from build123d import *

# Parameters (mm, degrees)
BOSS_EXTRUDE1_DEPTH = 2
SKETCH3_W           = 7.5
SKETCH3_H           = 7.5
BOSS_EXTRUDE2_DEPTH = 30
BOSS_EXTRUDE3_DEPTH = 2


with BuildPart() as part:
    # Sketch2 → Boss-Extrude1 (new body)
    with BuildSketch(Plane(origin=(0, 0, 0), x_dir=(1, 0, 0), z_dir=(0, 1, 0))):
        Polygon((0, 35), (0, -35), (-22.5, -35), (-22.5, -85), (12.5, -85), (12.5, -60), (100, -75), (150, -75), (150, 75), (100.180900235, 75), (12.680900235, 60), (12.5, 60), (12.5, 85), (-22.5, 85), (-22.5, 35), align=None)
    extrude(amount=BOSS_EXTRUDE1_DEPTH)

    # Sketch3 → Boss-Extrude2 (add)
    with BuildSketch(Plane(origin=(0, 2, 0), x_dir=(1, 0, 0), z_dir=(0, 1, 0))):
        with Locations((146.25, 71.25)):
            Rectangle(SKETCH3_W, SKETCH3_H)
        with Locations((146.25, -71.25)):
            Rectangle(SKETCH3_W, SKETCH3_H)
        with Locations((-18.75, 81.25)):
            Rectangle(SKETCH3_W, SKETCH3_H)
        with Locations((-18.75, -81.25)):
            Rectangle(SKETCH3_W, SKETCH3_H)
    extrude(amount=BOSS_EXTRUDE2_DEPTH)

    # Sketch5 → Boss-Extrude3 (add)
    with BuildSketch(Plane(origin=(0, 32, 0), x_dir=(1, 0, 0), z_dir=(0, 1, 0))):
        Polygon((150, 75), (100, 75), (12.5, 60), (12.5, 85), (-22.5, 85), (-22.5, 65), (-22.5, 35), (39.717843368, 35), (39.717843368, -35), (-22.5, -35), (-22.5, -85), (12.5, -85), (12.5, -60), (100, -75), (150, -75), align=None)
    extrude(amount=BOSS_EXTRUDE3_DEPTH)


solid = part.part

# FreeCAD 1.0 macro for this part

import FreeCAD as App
import Part
import Sketcher
from FreeCAD import Vector

doc = App.newDocument("Part")
body = doc.addObject("PartDesign::Body", "Body")

# Sketch on XZ plane
sketch1 = doc.addObject("Sketcher::SketchObject", "Sketch")
body.addObject(sketch1)
sketch1.AttachmentSupport = (doc.XZ_Plane, [""])
sketch1.MapMode = "FlatFace"
sketch1.addGeometry([
    Part.LineSegment(Vector(0, -35, 0), Vector(0, 35, 0)),  # 0
    Part.LineSegment(Vector(0, 35, 0), Vector(-22.5, 35, 0)),  # 1
    Part.LineSegment(Vector(-22.5, 35, 0), Vector(-22.5, 85, 0)),  # 2
    Part.LineSegment(Vector(-22.5, 85, 0), Vector(12.5, 85, 0)),  # 3
    Part.LineSegment(Vector(12.5, 85, 0), Vector(12.5, 60, 0)),  # 4
    Part.LineSegment(Vector(12.5, 60, 0), Vector(100, 75, 0)),  # 5
    Part.LineSegment(Vector(100, 75, 0), Vector(150, 75, 0)),  # 6
    Part.LineSegment(Vector(150, 75, 0), Vector(150, -75, 0)),  # 7
    Part.LineSegment(Vector(150, -75, 0), Vector(100.18, -75, 0)),  # 8
    Part.LineSegment(Vector(100.18, -75, 0), Vector(12.68, -60, 0)),  # 9
    Part.LineSegment(Vector(12.68, -60, 0), Vector(12.5, -60, 0)),  # 10
    Part.LineSegment(Vector(12.5, -60, 0), Vector(12.5, -85, 0)),  # 11
    Part.LineSegment(Vector(12.5, -85, 0), Vector(-22.5, -85, 0)),  # 12
    Part.LineSegment(Vector(-22.5, -85, 0), Vector(-22.5, -35, 0)),  # 13
    Part.LineSegment(Vector(-22.5, -35, 0), Vector(0, -35, 0)),  # 14
], False)
sketch1.addConstraint([
    Sketcher.Constraint("Coincident", 0, 2, 1, 1),
    Sketcher.Constraint("Coincident", 1, 2, 2, 1),
    Sketcher.Constraint("Coincident", 2, 2, 3, 1),
    Sketcher.Constraint("Coincident", 3, 2, 4, 1),
    Sketcher.Constraint("Coincident", 4, 2, 5, 1),
    Sketcher.Constraint("Coincident", 5, 2, 6, 1),
    Sketcher.Constraint("Coincident", 6, 2, 7, 1),
    Sketcher.Constraint("Coincident", 7, 2, 8, 1),
    Sketcher.Constraint("Coincident", 8, 2, 9, 1),
    Sketcher.Constraint("Coincident", 9, 2, 10, 1),
    Sketcher.Constraint("Coincident", 10, 2, 11, 1),
    Sketcher.Constraint("Coincident", 11, 2, 12, 1),
    Sketcher.Constraint("Coincident", 12, 2, 13, 1),
    Sketcher.Constraint("Coincident", 13, 2, 14, 1),
    Sketcher.Constraint("Coincident", 14, 2, 0, 1),
    Sketcher.Constraint("Vertical", 0),
    Sketcher.Constraint("Horizontal", 1),
    Sketcher.Constraint("Vertical", 2),
    Sketcher.Constraint("Horizontal", 3),
    Sketcher.Constraint("Vertical", 4),
    Sketcher.Constraint("Horizontal", 6),
    Sketcher.Constraint("Vertical", 7),
    Sketcher.Constraint("Horizontal", 8),
    Sketcher.Constraint("Horizontal", 10),
    Sketcher.Constraint("Vertical", 11),
    Sketcher.Constraint("Horizontal", 12),
    Sketcher.Constraint("Vertical", 13),
    Sketcher.Constraint("Horizontal", 14),
    Sketcher.Constraint("Symmetric", 0, 2, 14, 2, -1, 1),
    Sketcher.Constraint("Symmetric", 4, 2, 10, 2, -1),
    Sketcher.Constraint("Symmetric", 2, 2, 12, 2, -1),
    Sketcher.Constraint("Equal", 6, 2),
    Sketcher.Constraint("Equal", 5, 9),
    Sketcher.Constraint("DistanceX", 3, 1, 3, 2, 35.0),
    Sketcher.Constraint("DistanceX", 6, 1, 6, 2, 50.0),
    Sketcher.Constraint("DistanceY", 0, 1, 0, 2, 70.0),
    Sketcher.Constraint("DistanceY", 4, 2, 4, 1, 25.0),
    Sketcher.Constraint("DistanceY", 7, 2, 7, 1, 150.0),
    Sketcher.Constraint("DistanceX", 1, 2, 1, 1, 22.5),
    Sketcher.Constraint("DistanceX", -1, 1, 5, 2, 100.0),
    Sketcher.Constraint("DistanceY", -1, 1, 5, 2, 75.0),
    Sketcher.Constraint("DistanceX", 8, 2, 8, 1, 49.8191),
])
pad1 = doc.addObject("PartDesign::Pad", "Pad")
body.addObject(pad1)
pad1.Profile = sketch1
pad1.Length = 2
pad1.Reversed = True

# Sketch on XZ plane
sketch2 = doc.addObject("Sketcher::SketchObject", "Sketch001")
body.addObject(sketch2)
sketch2.AttachmentSupport = (doc.XZ_Plane, [""])
sketch2.MapMode = "FlatFace"
sketch2.AttachmentOffset = App.Placement(Vector(0, 0, -2), App.Rotation())
sketch2.addGeometry([
    Part.LineSegment(Vector(142, -75, 0), Vector(142, -68, 0)),  # 0
    Part.LineSegment(Vector(142, -68, 0), Vector(150, -68, 0)),  # 1
    Part.LineSegment(Vector(150, -68, 0), Vector(150, -75, 0)),  # 2
    Part.LineSegment(Vector(150, -75, 0), Vector(142, -75, 0)),  # 3
    Part.LineSegment(Vector(142, 68, 0), Vector(142, 75, 0)),  # 4
    Part.LineSegment(Vector(142, 75, 0), Vector(150, 75, 0)),  # 5
    Part.LineSegment(Vector(150, 75, 0), Vector(150, 68, 0)),  # 6
    Part.LineSegment(Vector(150, 68, 0), Vector(142, 68, 0)),  # 7
    Part.LineSegment(Vector(-22, -85, 0), Vector(-22, -78, 0)),  # 8
    Part.LineSegment(Vector(-22, -78, 0), Vector(-15, -78, 0)),  # 9
    Part.LineSegment(Vector(-15, -78, 0), Vector(-15, -85, 0)),  # 10
    Part.LineSegment(Vector(-15, -85, 0), Vector(-22, -85, 0)),  # 11
    Part.LineSegment(Vector(-22, 78, 0), Vector(-22, 85, 0)),  # 12
    Part.LineSegment(Vector(-22, 85, 0), Vector(-15, 85, 0)),  # 13
    Part.LineSegment(Vector(-15, 85, 0), Vector(-15, 78, 0)),  # 14
    Part.LineSegment(Vector(-15, 78, 0), Vector(-22, 78, 0)),  # 15
], False)
sketch2.addConstraint([
    Sketcher.Constraint("Coincident", 0, 2, 1, 1),
    Sketcher.Constraint("Coincident", 1, 2, 2, 1),
    Sketcher.Constraint("Coincident", 2, 2, 3, 1),
    Sketcher.Constraint("Coincident", 3, 2, 0, 1),
    Sketcher.Constraint("Coincident", 4, 2, 5, 1),
    Sketcher.Constraint("Coincident", 5, 2, 6, 1),
    Sketcher.Constraint("Coincident", 6, 2, 7, 1),
    Sketcher.Constraint("Coincident", 7, 2, 4, 1),
    Sketcher.Constraint("Coincident", 8, 2, 9, 1),
    Sketcher.Constraint("Coincident", 9, 2, 10, 1),
    Sketcher.Constraint("Coincident", 10, 2, 11, 1),
    Sketcher.Constraint("Coincident", 11, 2, 8, 1),
    Sketcher.Constraint("Coincident", 12, 2, 13, 1),
    Sketcher.Constraint("Coincident", 13, 2, 14, 1),
    Sketcher.Constraint("Coincident", 14, 2, 15, 1),
    Sketcher.Constraint("Coincident", 15, 2, 12, 1),
    Sketcher.Constraint("Vertical", 0),
    Sketcher.Constraint("Horizontal", 1),
    Sketcher.Constraint("Vertical", 2),
    Sketcher.Constraint("Horizontal", 3),
    Sketcher.Constraint("Vertical", 4),
    Sketcher.Constraint("Horizontal", 5),
    Sketcher.Constraint("Vertical", 6),
    Sketcher.Constraint("Horizontal", 7),
    Sketcher.Constraint("Vertical", 8),
    Sketcher.Constraint("Horizontal", 9),
    Sketcher.Constraint("Vertical", 10),
    Sketcher.Constraint("Horizontal", 11),
    Sketcher.Constraint("Vertical", 12),
    Sketcher.Constraint("Horizontal", 13),
    Sketcher.Constraint("Vertical", 14),
    Sketcher.Constraint("Horizontal", 15),
    Sketcher.Constraint("Symmetric", 3, 2, 4, 2, -1),
    Sketcher.Constraint("Symmetric", 1, 2, 6, 2, -1),
    Sketcher.Constraint("Symmetric", 11, 2, 12, 2, -1),
    Sketcher.Constraint("Symmetric", 9, 2, 14, 2, -1),
    Sketcher.Constraint("Equal", 7, 9),
    Sketcher.Constraint("Equal", 15, 0),
    Sketcher.Constraint("Equal", 6, 8),
    Sketcher.Constraint("DistanceX", 1, 1, 1, 2, 7.5),
    Sketcher.Constraint("DistanceX", -1, 1, 1, 2, 150.0),
    Sketcher.Constraint("DistanceY", 2, 2, -1, 1, 75.0),
    Sketcher.Constraint("DistanceX", 9, 2, -1, 1, 15.0),
    Sketcher.Constraint("DistanceY", 10, 2, -1, 1, 85.0),
])
pad2 = doc.addObject("PartDesign::Pad", "Pad001")
body.addObject(pad2)
pad2.Profile = sketch2
pad2.Length = 30
pad2.Reversed = True

# Sketch on XZ plane
sketch3 = doc.addObject("Sketcher::SketchObject", "Sketch002")
body.addObject(sketch3)
sketch3.AttachmentSupport = (doc.XZ_Plane, [""])
sketch3.MapMode = "FlatFace"
sketch3.AttachmentOffset = App.Placement(Vector(0, 0, -32), App.Rotation())
sketch3.addGeometry([
    Part.LineSegment(Vector(150, -75, 0), Vector(100, -75, 0)),  # 0
    Part.LineSegment(Vector(100, -75, 0), Vector(12, -60, 0)),  # 1
    Part.LineSegment(Vector(12, -60, 0), Vector(12, -85, 0)),  # 2
    Part.LineSegment(Vector(12, -85, 0), Vector(-22, -85, 0)),  # 3
    Part.LineSegment(Vector(-22, -85, 0), Vector(-22, -35, 0)),  # 4
    Part.LineSegment(Vector(-22, -35, 0), Vector(40, -35, 0)),  # 5
    Part.LineSegment(Vector(40, -35, 0), Vector(40, 35, 0)),  # 6
    Part.LineSegment(Vector(40, 35, 0), Vector(-22, 35, 0)),  # 7
    Part.LineSegment(Vector(-22, 35, 0), Vector(-22, 85, 0)),  # 8
    Part.LineSegment(Vector(-22, 85, 0), Vector(12, 85, 0)),  # 9
    Part.LineSegment(Vector(12, 85, 0), Vector(12, 60, 0)),  # 10
    Part.LineSegment(Vector(12, 60, 0), Vector(100, 75, 0)),  # 11
    Part.LineSegment(Vector(100, 75, 0), Vector(150, 75, 0)),  # 12
    Part.LineSegment(Vector(150, 75, 0), Vector(150, -75, 0)),  # 13
], False)
sketch3.addConstraint([
    Sketcher.Constraint("Coincident", 0, 2, 1, 1),
    Sketcher.Constraint("Coincident", 1, 2, 2, 1),
    Sketcher.Constraint("Coincident", 2, 2, 3, 1),
    Sketcher.Constraint("Coincident", 3, 2, 4, 1),
    Sketcher.Constraint("Coincident", 4, 2, 5, 1),
    Sketcher.Constraint("Coincident", 5, 2, 6, 1),
    Sketcher.Constraint("Coincident", 6, 2, 7, 1),
    Sketcher.Constraint("Coincident", 7, 2, 8, 1),
    Sketcher.Constraint("Coincident", 8, 2, 9, 1),
    Sketcher.Constraint("Coincident", 9, 2, 10, 1),
    Sketcher.Constraint("Coincident", 10, 2, 11, 1),
    Sketcher.Constraint("Coincident", 11, 2, 12, 1),
    Sketcher.Constraint("Coincident", 12, 2, 13, 1),
    Sketcher.Constraint("Coincident", 13, 2, 0, 1),
    Sketcher.Constraint("Horizontal", 0),
    Sketcher.Constraint("Vertical", 2),
    Sketcher.Constraint("Horizontal", 3),
    Sketcher.Constraint("Vertical", 4),
    Sketcher.Constraint("Horizontal", 5),
    Sketcher.Constraint("Vertical", 6),
    Sketcher.Constraint("Horizontal", 7),
    Sketcher.Constraint("Vertical", 8),
    Sketcher.Constraint("Horizontal", 9),
    Sketcher.Constraint("Vertical", 10),
    Sketcher.Constraint("Horizontal", 12),
    Sketcher.Constraint("Vertical", 13),
    Sketcher.Constraint("Symmetric", 4, 2, 7, 2, -1),
    Sketcher.Constraint("Symmetric", 2, 2, 9, 2, -1),
    Sketcher.Constraint("Symmetric", 0, 2, 11, 2, -1),
    Sketcher.Constraint("Equal", 12, 4),
    Sketcher.Constraint("Equal", 2, 10),
    Sketcher.Constraint("DistanceX", 0, 2, 0, 1, 50.0),
    Sketcher.Constraint("DistanceX", 3, 2, 3, 1, 35.0),
    Sketcher.Constraint("DistanceY", 2, 2, 2, 1, 25.0),
    Sketcher.Constraint("DistanceY", 6, 1, 6, 2, 70.0),
    Sketcher.Constraint("DistanceY", 13, 2, 13, 1, 150.0),
    Sketcher.Constraint("DistanceX", -1, 1, 0, 2, 100.0),
    Sketcher.Constraint("DistanceX", -1, 1, 1, 2, 12.5),
    Sketcher.Constraint("DistanceX", 5, 1, 5, 2, 62.217843),
])
pad3 = doc.addObject("PartDesign::Pad", "Pad002")
body.addObject(pad3)
pad3.Profile = sketch3
pad3.Length = 2
pad3.Reversed = True

doc.recompute()
